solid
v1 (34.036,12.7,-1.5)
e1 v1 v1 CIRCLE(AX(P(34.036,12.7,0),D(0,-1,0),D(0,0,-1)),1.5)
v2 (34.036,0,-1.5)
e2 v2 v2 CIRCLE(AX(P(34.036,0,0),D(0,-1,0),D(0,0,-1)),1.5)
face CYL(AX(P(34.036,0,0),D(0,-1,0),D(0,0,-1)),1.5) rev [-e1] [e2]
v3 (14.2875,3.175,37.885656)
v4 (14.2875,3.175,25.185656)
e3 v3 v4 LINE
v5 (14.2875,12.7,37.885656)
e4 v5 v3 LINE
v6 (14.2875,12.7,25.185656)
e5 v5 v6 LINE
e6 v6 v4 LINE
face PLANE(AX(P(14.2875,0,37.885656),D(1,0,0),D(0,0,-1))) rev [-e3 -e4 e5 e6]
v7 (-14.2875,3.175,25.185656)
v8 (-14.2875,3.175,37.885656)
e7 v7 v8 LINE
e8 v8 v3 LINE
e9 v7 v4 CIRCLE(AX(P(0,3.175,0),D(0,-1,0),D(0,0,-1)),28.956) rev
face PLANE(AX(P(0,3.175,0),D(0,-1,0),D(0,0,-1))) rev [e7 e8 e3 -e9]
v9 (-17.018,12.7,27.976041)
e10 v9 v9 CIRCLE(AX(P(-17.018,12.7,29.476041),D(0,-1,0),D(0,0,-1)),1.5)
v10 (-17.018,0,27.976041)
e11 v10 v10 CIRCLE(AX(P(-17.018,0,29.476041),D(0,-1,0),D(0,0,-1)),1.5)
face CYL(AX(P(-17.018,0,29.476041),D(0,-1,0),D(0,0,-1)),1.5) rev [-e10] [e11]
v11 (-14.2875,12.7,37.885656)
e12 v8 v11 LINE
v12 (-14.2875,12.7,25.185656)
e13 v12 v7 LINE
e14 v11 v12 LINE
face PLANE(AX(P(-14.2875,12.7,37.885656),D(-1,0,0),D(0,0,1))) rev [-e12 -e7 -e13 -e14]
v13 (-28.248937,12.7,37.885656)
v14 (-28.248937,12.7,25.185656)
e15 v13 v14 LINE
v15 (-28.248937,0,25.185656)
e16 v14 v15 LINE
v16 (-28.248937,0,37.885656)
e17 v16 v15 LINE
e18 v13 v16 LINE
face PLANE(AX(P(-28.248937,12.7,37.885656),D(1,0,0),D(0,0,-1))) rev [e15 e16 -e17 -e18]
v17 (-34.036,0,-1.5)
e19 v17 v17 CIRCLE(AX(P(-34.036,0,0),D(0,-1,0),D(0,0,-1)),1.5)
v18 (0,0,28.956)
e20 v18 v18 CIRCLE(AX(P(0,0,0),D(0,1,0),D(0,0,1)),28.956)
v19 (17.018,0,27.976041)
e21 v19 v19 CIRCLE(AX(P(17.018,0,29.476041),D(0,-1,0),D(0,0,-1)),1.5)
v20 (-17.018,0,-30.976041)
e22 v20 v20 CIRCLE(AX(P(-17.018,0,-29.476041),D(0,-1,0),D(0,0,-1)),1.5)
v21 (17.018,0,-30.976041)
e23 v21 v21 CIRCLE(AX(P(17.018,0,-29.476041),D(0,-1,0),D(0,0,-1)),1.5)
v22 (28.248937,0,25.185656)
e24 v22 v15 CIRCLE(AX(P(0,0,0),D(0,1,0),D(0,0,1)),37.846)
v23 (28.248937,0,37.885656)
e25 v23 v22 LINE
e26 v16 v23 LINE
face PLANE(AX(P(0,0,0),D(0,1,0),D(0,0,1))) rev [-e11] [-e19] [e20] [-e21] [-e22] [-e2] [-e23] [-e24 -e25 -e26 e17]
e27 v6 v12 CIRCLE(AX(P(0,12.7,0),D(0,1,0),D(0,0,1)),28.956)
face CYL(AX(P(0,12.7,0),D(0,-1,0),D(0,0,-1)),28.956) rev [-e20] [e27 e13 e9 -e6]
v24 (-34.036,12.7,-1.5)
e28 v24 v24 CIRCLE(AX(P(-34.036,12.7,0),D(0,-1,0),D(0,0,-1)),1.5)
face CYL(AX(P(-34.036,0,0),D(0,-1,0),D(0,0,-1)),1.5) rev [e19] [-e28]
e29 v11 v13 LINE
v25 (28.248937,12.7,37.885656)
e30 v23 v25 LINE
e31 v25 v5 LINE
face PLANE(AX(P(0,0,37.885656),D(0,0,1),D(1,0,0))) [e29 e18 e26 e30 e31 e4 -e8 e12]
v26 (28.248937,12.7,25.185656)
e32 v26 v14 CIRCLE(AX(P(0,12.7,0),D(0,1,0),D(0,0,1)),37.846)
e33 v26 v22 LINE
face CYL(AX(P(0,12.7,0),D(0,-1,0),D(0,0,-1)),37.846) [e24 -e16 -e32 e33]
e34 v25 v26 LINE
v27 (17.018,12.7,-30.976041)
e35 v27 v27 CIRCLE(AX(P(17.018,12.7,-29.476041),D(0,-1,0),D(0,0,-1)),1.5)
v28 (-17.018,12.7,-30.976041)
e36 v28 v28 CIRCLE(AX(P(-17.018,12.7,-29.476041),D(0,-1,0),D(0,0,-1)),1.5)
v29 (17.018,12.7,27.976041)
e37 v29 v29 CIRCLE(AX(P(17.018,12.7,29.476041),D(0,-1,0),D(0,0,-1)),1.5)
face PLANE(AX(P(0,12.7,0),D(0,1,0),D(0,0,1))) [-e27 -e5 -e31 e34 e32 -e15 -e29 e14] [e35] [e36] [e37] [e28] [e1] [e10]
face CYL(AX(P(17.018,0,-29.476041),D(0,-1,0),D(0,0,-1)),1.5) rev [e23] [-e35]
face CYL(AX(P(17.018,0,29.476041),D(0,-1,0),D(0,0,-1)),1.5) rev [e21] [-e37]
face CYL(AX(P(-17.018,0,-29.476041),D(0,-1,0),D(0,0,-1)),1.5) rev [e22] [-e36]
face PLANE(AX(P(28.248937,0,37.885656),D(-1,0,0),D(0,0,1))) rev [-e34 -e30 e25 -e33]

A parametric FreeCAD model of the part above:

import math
import FreeCAD as App
import Part
import Sketcher
from FreeCAD import Vector
Q = App.Units.Quantity


def add_polygon(sketch, points):
    """Adds a closed chain of lines whose ends are joined by coincident constraints."""
    first, n = sketch.GeometryCount, len(points)
    for a, b in zip(points, points[1:] + points[:1]):
        sketch.addGeometry(Part.LineSegment(App.Vector(*a, 0), App.Vector(*b, 0)), False)
    for i in range(n):
        sketch.addConstraint(Sketcher.Constraint("Coincident", first + i, 2, first + (i + 1) % n, 1))

doc = App.newDocument("Part")
body = doc.addObject("PartDesign::Body", "Body")

sketch1 = body.newObject("Sketcher::SketchObject", "Sketch")
sketch1.AttachmentSupport = (doc.getObject("XZ_Plane"), [""])
sketch1.MapMode = "FlatFace"
sketch1.addGeometry([
    Part.ArcOfCircle(Part.Circle(Vector(0, 0, 0), Vector(0, 0, 1), 29), math.radians(0), math.radians(60)),
    Part.LineSegment(Vector(14, 25, 0), Vector(28, 25, 0)),
    Part.ArcOfCircle(Part.Circle(Vector(0, 0, 0), Vector(0, 0, 1), 38), math.radians(0), math.radians(42)),
    Part.ArcOfCircle(Part.Circle(Vector(0, 0, 0), Vector(0, 0, 1), 38), math.radians(138), math.radians(360)),
    Part.LineSegment(Vector(-28, 25, 0), Vector(-14, 25, 0)),
    Part.ArcOfCircle(Part.Circle(Vector(0, 0, 0), Vector(0, 0, 1), 29), math.radians(120), math.radians(360)),
], False)
sketch1.addConstraint([
    Sketcher.Constraint("Coincident", 0, 2, 1, 1),
    Sketcher.Constraint("Coincident", 1, 2, 2, 2),
    Sketcher.Constraint("Tangent", 2, 1, 3, 2),
    Sketcher.Constraint("Coincident", 3, 1, 4, 1),
    Sketcher.Constraint("Coincident", 4, 2, 5, 1),
    Sketcher.Constraint("Tangent", 5, 2, 0, 1),
    Sketcher.Constraint("Horizontal", 1),
    Sketcher.Constraint("Horizontal", 4),
    Sketcher.Constraint("Coincident", 0, 3, -1, 1),
    Sketcher.Constraint("Coincident", 2, 3, -1, 1),
    Sketcher.Constraint("Equal", 2, 3),
    Sketcher.Constraint("Equal", 0, 5),
    Sketcher.Constraint("PointOnObject", 2, 1, -1),
    Sketcher.Constraint("PointOnObject", 5, 2, -1),
    Sketcher.Constraint("Horizontal", 1, 2, 3, 1),
    Sketcher.Constraint("Radius", 0, Q("1.14 in")),
    Sketcher.Constraint("Radius", 2, Q("1.49 in")),
    Sketcher.Constraint("DistanceX", -1, 1, 0, 2, Q("0.5625 in")),
])
pad1 = body.newObject("PartDesign::Pad", "Pad")
pad1.Profile = sketch1
pad1.Length = Q("0.5 in")
pad1.Reversed = True

sketch2 = body.newObject("Sketcher::SketchObject", "Sketch001")
sketch2.AttachmentSupport = (doc.getObject("XY_Plane"), [""])
sketch2.MapMode = "FlatFace"
sketch2.AttachmentOffset = App.Placement(Vector(0, 0, 25.185656), App.Rotation())
add_polygon(sketch2, [(-28, 13), (-28, 0), (-14, 0), (-14, 13)])
add_polygon(sketch2, [(14, 13), (14, 0), (28, 0), (28, 13)])
sketch2.addConstraint([
    Sketcher.Constraint("Vertical", 0),
    Sketcher.Constraint("Horizontal", 1),
    Sketcher.Constraint("Vertical", 2),
    Sketcher.Constraint("Horizontal", 3),
    Sketcher.Constraint("Vertical", 4),
    Sketcher.Constraint("Horizontal", 5),
    Sketcher.Constraint("Vertical", 6),
    Sketcher.Constraint("Horizontal", 7),
    Sketcher.Constraint("Symmetric", 1, 2, 4, 2, -1, 1),
    Sketcher.Constraint("Symmetric", 0, 2, 5, 2, -2),
    Sketcher.Constraint("Horizontal", 3, 2, 6, 2),
    Sketcher.Constraint("DistanceY", 0, 2, 0, 1, Q("0.5 in")),
    Sketcher.Constraint("DistanceX", 1, 2, -1, 1, Q("0.5625 in")),
    Sketcher.Constraint("DistanceX", 1, 1, 1, 2, Q("13.961437 mm")),
])
pad2 = body.newObject("PartDesign::Pad", "Pad001")
pad2.Profile = sketch2
pad2.Length = Q("0.5 in")

sketch3 = body.newObject("Sketcher::SketchObject", "Sketch002")
sketch3.AttachmentSupport = (doc.getObject("XZ_Plane"), [""])
sketch3.MapMode = "FlatFace"
sketch3.addGeometry([
    Part.Circle(Vector(17, -29.5, 0), Vector(0, 0, 1), 1.5),
    Part.Circle(Vector(34, 0, 0), Vector(0, 0, 1), 1.5),
    Part.Circle(Vector(-17, -29.5, 0), Vector(0, 0, 1), 1.5),
    Part.Circle(Vector(-34, 0, 0), Vector(0, 0, 1), 1.5),
    Part.Circle(Vector(-17, 29.5, 0), Vector(0, 0, 1), 1.5),
    Part.Circle(Vector(17, 29.5, 0), Vector(0, 0, 1), 1.5),
], False)
sketch3.addConstraint([
    Sketcher.Constraint("Equal", 0, 1),
    Sketcher.Constraint("Equal", 1, 2),
    Sketcher.Constraint("Equal", 2, 3),
    Sketcher.Constraint("Equal", 3, 4),
    Sketcher.Constraint("Equal", 4, 5),
    Sketcher.Constraint("Symmetric", 1, 3, 3, 3, -1, 1),
    Sketcher.Constraint("Symmetric", 0, 3, 4, 3, -1, 1),
    Sketcher.Constraint("Symmetric", 2, 3, 5, 3, -1, 1),
    Sketcher.Constraint("Symmetric", 0, 3, 2, 3, -2),
    Sketcher.Constraint("PointOnObject", 1, 3, -1),
    Sketcher.Constraint("Diameter", 0, Q("3 mm")),
    Sketcher.Constraint("DistanceX", -1, 1, 0, 3, Q("0.67 in")),
    Sketcher.Constraint("DistanceX", -1, 1, 1, 3, Q("1.34 in")),
    Sketcher.Constraint("DistanceY", 0, 3, -1, 1, Q("29.476041 mm")),
])
doc.recompute()
hole = body.newObject("PartDesign::Hole", "Hole")
hole.Profile = sketch3
hole.ThreadType = "None"
hole.Diameter = 3
hole.DepthType = "ThroughAll"

sketch4 = body.newObject("Sketcher::SketchObject", "Sketch003")
sketch4.AttachmentSupport = (doc.getObject("XZ_Plane"), [""])
sketch4.MapMode = "FlatFace"
sketch4.addGeometry([
    Part.ArcOfCircle(Part.Circle(Vector(0, 0, 0), Vector(0, 0, 1), 29), math.radians(60), math.radians(120)),
    Part.LineSegment(Vector(14, 25, 0), Vector(14, 38, 0)),
    Part.LineSegment(Vector(14, 38, 0), Vector(-14, 38, 0)),
    Part.LineSegment(Vector(-14, 38, 0), Vector(-14, 25, 0)),
], False)
sketch4.addConstraint([
    Sketcher.Constraint("Coincident", 0, 1, 1, 1),
    Sketcher.Constraint("Coincident", 1, 2, 2, 1),
    Sketcher.Constraint("Coincident", 2, 2, 3, 1),
    Sketcher.Constraint("Coincident", 3, 2, 0, 2),
    Sketcher.Constraint("Vertical", 1),
    Sketcher.Constraint("Horizontal", 2),
    Sketcher.Constraint("Vertical", 3),
    Sketcher.Constraint("Coincident", 0, 3, -1, 1),
    Sketcher.Constraint("Horizontal", 0, 1, 3, 2),
    Sketcher.Constraint("Radius", 0, Q("1.14 in")),
    Sketcher.Constraint("DistanceY", 1, 1, 1, 2, Q("0.5 in")),
    Sketcher.Constraint("DistanceX", 2, 2, 2, 1, Q("1.125 in")),
])
pad3 = body.newObject("PartDesign::Pad", "Pad002")
pad3.Profile = sketch4
pad3.Length = Q("0.125 in")
pad3.Reversed = True

doc.recompute()
